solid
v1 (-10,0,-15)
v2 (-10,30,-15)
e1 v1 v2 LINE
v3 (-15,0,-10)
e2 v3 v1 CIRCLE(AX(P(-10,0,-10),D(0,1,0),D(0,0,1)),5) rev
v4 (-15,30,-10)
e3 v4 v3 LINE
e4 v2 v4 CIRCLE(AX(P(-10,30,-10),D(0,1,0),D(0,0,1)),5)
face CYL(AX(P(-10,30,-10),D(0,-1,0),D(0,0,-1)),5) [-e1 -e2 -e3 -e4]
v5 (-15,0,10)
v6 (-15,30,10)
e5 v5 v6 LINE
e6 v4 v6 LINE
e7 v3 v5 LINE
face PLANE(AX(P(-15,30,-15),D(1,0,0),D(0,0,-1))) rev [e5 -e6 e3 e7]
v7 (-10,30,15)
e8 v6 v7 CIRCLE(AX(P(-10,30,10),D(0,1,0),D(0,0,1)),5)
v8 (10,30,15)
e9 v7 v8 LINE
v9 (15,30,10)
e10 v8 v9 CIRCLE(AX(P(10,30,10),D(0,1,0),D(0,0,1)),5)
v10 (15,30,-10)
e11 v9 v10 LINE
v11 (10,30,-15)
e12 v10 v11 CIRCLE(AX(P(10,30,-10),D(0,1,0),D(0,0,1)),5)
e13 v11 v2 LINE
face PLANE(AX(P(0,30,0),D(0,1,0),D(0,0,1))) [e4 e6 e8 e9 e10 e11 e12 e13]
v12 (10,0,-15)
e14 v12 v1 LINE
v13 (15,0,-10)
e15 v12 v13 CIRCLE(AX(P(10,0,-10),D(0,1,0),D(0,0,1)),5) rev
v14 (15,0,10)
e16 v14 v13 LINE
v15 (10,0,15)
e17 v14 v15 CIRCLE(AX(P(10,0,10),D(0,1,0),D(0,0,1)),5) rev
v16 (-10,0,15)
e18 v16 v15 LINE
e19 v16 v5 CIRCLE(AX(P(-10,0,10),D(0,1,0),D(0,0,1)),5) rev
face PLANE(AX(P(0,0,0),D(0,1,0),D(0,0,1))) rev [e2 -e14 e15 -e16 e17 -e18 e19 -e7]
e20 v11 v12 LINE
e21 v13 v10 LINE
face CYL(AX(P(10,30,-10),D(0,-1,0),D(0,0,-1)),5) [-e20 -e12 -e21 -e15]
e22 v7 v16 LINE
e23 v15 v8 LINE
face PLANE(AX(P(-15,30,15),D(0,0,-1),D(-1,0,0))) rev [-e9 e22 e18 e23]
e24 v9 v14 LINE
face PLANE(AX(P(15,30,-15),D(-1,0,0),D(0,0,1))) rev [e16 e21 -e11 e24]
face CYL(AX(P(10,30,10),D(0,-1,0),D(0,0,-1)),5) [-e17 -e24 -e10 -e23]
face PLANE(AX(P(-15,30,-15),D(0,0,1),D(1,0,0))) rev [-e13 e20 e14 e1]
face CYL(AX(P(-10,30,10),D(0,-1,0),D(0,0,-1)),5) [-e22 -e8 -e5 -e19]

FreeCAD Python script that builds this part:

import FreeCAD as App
import Part
import Sketcher
Q = App.Units.Quantity


def edges_at(feature, points):
    """Names of the edges that pass closest to the given points."""
    edges = feature.Shape.Edges
    near = lambda p: min(range(len(edges)), key=lambda i: edges[i].distToShape(Part.Vertex(*p))[0])
    return sorted({f"Edge{near(p) + 1}" for p in points})

doc = App.newDocument("Part")
params = doc.addObject("Spreadsheet::Sheet", "Params")
for row, (alias, value) in enumerate([
    ("sketch1_width", "30 mm"),
    ("pad1_length", "30 mm"),
    ("fillet_radius", "5 mm"),
    ("fillet2_radius", "5 mm"),
    ("fillet3_radius", "5 mm"),
    ("fillet4_radius", "5 mm"),
], start=1):
    params.set(f"A{row}", alias)
    params.set(f"B{row}", "=" + value)
    params.setAlias(f"B{row}", alias)

body = doc.addObject("PartDesign::Body", "Body")

# Sketch on XZ plane
sketch1 = body.newObject("Sketcher::SketchObject", "Sketch")
sketch1.AttachmentSupport = (doc.getObject("XZ_Plane"), [""])
sketch1.MapMode = "FlatFace"
sketch1.addGeometry([
    Part.LineSegment(App.Vector(-15, -15, 0), App.Vector(-15, 15, 0)),
    Part.LineSegment(App.Vector(-15, 15, 0), App.Vector(15, 15, 0)),
    Part.LineSegment(App.Vector(15, 15, 0), App.Vector(15, -15, 0)),
    Part.LineSegment(App.Vector(15, -15, 0), App.Vector(-15, -15, 0)),
], False)
sketch1.addConstraint([
    Sketcher.Constraint("Coincident", 0, 2, 1, 1),
    Sketcher.Constraint("Coincident", 1, 2, 2, 1),
    Sketcher.Constraint("Coincident", 2, 2, 3, 1),
    Sketcher.Constraint("Coincident", 3, 2, 0, 1),
    Sketcher.Constraint("Vertical", 0),
    Sketcher.Constraint("Horizontal", 1),
    Sketcher.Constraint("Vertical", 2),
    Sketcher.Constraint("Horizontal", 3),
    Sketcher.Constraint("Symmetric", 0, 2, 2, 2, -1, 1),
    Sketcher.Constraint("Equal", 3, 0),
    Sketcher.Constraint("DistanceX", 1, 1, 1, 2, Q("30 mm")),
])
sketch1.setExpression("Constraints[10]", "Params.sketch1_width")
pad1 = body.newObject("PartDesign::Pad", "Pad")
pad1.Profile = sketch1
pad1.setExpression("Length", "Params.pad1_length")
pad1.Reversed = True
doc.recompute()

fillet = body.newObject("PartDesign::Fillet", "Fillet")
fillet.Base = (pad1, edges_at(pad1, [(15, 15, 15)]))
fillet.setExpression("Radius", "Params.fillet_radius")
doc.recompute()

fillet2 = body.newObject("PartDesign::Fillet", "Fillet001")
fillet2.Base = (fillet, edges_at(fillet, [(15, 15, -15)]))
fillet2.setExpression("Radius", "Params.fillet2_radius")
doc.recompute()

fillet3 = body.newObject("PartDesign::Fillet", "Fillet002")
fillet3.Base = (fillet2, edges_at(fillet2, [(-15, 15, 15)]))
fillet3.setExpression("Radius", "Params.fillet3_radius")
doc.recompute()

fillet4 = body.newObject("PartDesign::Fillet", "Fillet003")
fillet4.Base = (fillet3, edges_at(fillet3, [(-15, 15, -15)]))
fillet4.setExpression("Radius", "Params.fillet4_radius")

doc.recompute()
